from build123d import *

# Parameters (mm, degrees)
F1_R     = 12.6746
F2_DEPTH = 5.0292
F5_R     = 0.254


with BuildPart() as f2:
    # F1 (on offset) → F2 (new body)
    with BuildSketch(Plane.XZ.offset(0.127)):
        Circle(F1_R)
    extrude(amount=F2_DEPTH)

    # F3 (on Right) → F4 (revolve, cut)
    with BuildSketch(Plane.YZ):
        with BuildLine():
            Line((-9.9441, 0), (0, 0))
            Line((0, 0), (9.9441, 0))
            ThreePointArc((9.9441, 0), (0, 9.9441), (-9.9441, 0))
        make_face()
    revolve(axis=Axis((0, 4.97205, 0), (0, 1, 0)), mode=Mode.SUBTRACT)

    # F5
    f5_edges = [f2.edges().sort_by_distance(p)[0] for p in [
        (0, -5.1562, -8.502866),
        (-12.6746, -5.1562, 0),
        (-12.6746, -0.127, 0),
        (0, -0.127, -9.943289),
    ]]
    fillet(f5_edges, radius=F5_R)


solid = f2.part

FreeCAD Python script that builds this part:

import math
import FreeCAD as App
import Part
import Sketcher
from FreeCAD import Vector
Q = App.Units.Quantity


def edges_at(feature, points):
    """Names of the edges that pass closest to the given points."""
    edges = feature.Shape.Edges
    near = lambda p: min(range(len(edges)), key=lambda i: edges[i].distToShape(Part.Vertex(*p))[0])
    return sorted({f"Edge{near(p) + 1}" for p in points})

doc = App.newDocument("Part")
body = doc.addObject("PartDesign::Body", "Body")

sketch1 = body.newObject("Sketcher::SketchObject", "Sketch")
sketch1.AttachmentSupport = (doc.getObject("XZ_Plane"), [""])
sketch1.MapMode = "FlatFace"
sketch1.AttachmentOffset = App.Placement(Vector(0, 0, 0.005 * 25.4), App.Rotation())
sketch1.addGeometry(Part.Circle(Vector(0, 0, 0), Vector(0, 0, 1), 13), False)
sketch1.addConstraint(Sketcher.Constraint("Coincident", 0, 3, -1, 1))
sketch1.addConstraint(Sketcher.Constraint("Diameter", 0, Q("0.998 in")))
pad1 = body.newObject("PartDesign::Pad", "Pad")
pad1.Profile = sketch1
pad1.Length = Q("0.198 in")

sketch2 = body.newObject("Sketcher::SketchObject", "Sketch001")
sketch2.AttachmentSupport = (doc.getObject("YZ_Plane"), [""])
sketch2.MapMode = "FlatFace"
sketch2.addGeometry(Part.LineSegment(Vector(-10, 0, 0), Vector(10, 0, 0)), False)
sketch2.addGeometry(Part.ArcOfCircle(Part.Circle(Vector(0, 0, 0), Vector(0, 0, 1), 10), math.radians(0), math.radians(180)), False)
sketch2.addConstraint(Sketcher.Constraint("Coincident", 0, 1, 1, 2))
sketch2.addConstraint(Sketcher.Constraint("Coincident", 1, 1, 0, 2))
sketch2.addConstraint(Sketcher.Constraint("Horizontal", 0))
sketch2.addConstraint(Sketcher.Constraint("Coincident", 1, 3, -1, 1))
sketch2.addConstraint(Sketcher.Constraint("PointOnObject", 0, 1, -1))
sketch2.addConstraint(Sketcher.Constraint("Radius", 1, Q("0.3915 in")))
groove = body.newObject("PartDesign::Groove", "Groove")
groove.Profile = sketch2
groove.ReferenceAxis = (sketch2, ["H_Axis"])
groove.Angle = 360
doc.recompute()

fillet = body.newObject("PartDesign::Fillet", "Fillet")
fillet.Base = (groove, edges_at(groove, [
    (0, -5.156, -8.503),
    (-12.675, -5.156, 0),
    (-12.675, -0.127, 0),
    (0, -0.127, -9.943),
]))
fillet.Radius = Q("0.01 in")

doc.recompute()
